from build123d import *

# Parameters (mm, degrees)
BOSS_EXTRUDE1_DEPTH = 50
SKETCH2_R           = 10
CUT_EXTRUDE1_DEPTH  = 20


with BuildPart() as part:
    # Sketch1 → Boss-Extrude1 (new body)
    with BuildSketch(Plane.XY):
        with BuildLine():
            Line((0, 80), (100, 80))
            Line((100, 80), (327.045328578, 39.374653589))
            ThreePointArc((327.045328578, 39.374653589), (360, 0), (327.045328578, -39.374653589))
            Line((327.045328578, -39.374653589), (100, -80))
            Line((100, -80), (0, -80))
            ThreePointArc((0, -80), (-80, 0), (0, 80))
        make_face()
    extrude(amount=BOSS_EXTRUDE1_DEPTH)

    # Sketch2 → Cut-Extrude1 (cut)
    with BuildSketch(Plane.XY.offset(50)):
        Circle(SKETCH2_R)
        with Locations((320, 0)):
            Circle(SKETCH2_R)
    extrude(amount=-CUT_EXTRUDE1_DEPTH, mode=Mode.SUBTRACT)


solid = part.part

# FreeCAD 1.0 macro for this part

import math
import FreeCAD as App
import Part
import Sketcher

V = App.Vector
Q = App.Units.Quantity

doc = App.newDocument("Part")
body = doc.addObject("PartDesign::Body", "Body")

# Sketch on XY plane
sketch1 = body.newObject("Sketcher::SketchObject", "Sketch")
sketch1.AttachmentSupport = (doc.getObject("XY_Plane"), [""])
sketch1.MapMode = "FlatFace"
sketch1.addGeometry([
    Part.LineSegment(V(100, 80, 0), V(0, 80, 0)),  # 0
    Part.ArcOfCircle(Part.Circle(V(0, 0, 0), V(0, 0, 1), 80), math.radians(90), math.radians(270)),  # 1
    Part.LineSegment(V(0, -80, 0), V(100, -80, 0)),  # 2
    Part.LineSegment(V(100, -80, 0), V(327.045329, -39.374654, 0)),  # 3
    Part.ArcOfCircle(Part.Circle(V(320, 0, 0), V(0, 0, 1), 40), math.radians(-79.855389), math.radians(79.855389)),  # 4
    Part.LineSegment(V(327.045329, 39.374654, 0), V(100, 80, 0)),  # 5
], False)
sketch1.addConstraint([
    Sketcher.Constraint("Tangent", 0, 2, 1, 1),
    Sketcher.Constraint("Tangent", 1, 2, 2, 1),
    Sketcher.Constraint("Coincident", 2, 2, 3, 1),
    Sketcher.Constraint("Tangent", 3, 2, 4, 1),
    Sketcher.Constraint("Tangent", 4, 2, 5, 1),
    Sketcher.Constraint("Coincident", 5, 2, 0, 1),
    Sketcher.Constraint("Horizontal", 0),
    Sketcher.Constraint("Horizontal", 2),
    Sketcher.Constraint("Coincident", 1, 3, -1, 1),
    Sketcher.Constraint("Symmetric", 3, 2, 4, 2, -1),
    Sketcher.Constraint("Radius", 1, Q("80 mm")),
    Sketcher.Constraint("Radius", 4, Q("40 mm")),
    Sketcher.Constraint("DistanceX", 0, 2, 0, 1, Q("100 mm")),
    Sketcher.Constraint("DistanceX", -1, 1, 4, 3, Q("320 mm")),
])
pad1 = body.newObject("PartDesign::Pad", "Pad")
pad1.Profile = sketch1
pad1.Length = 50

# Sketch on XY plane
sketch2 = body.newObject("Sketcher::SketchObject", "Sketch001")
sketch2.AttachmentSupport = (doc.getObject("XY_Plane"), [""])
sketch2.MapMode = "FlatFace"
sketch2.AttachmentOffset = App.Placement(V(0, 0, 50), App.Rotation())
sketch2.addGeometry([
    Part.Circle(V(0, 0, 0), V(0, 0, 1), 10),
    Part.Circle(V(320, 0, 0), V(0, 0, 1), 10),
], False)
sketch2.addConstraint([
    Sketcher.Constraint("Coincident", 0, 3, -1, 1),
    Sketcher.Constraint("Equal", 0, 1),
    Sketcher.Constraint("PointOnObject", 1, 3, -1),
    Sketcher.Constraint("Diameter", 0, Q("20 mm")),
    Sketcher.Constraint("DistanceX", -1, 1, 1, 3, Q("320 mm")),
])
pocket1 = body.newObject("PartDesign::Pocket", "Pocket")
pocket1.Profile = sketch2
pocket1.Length = 20

doc.recompute()
